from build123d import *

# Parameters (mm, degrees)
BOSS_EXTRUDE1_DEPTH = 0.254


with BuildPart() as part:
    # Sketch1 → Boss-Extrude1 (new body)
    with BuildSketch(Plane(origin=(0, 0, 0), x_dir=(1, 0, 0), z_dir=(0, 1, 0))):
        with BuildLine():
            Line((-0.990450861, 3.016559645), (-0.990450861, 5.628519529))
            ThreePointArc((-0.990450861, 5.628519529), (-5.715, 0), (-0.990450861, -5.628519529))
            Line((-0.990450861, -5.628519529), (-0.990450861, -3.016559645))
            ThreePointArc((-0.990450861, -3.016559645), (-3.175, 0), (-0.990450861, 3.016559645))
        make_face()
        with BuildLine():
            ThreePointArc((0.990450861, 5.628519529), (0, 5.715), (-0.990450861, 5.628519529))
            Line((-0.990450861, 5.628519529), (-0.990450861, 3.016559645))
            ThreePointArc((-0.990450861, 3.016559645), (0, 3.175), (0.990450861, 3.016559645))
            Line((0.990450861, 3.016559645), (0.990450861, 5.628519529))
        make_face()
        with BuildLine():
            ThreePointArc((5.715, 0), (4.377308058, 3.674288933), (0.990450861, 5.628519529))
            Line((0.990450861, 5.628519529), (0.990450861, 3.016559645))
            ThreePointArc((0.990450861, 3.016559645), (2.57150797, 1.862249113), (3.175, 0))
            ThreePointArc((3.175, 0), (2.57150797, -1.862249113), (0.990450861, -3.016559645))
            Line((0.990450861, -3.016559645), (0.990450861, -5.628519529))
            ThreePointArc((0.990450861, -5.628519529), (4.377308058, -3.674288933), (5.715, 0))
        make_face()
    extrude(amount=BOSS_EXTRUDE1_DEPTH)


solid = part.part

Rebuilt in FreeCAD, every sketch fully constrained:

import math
import FreeCAD as App
import Part
import Sketcher
Q = App.Units.Quantity

doc = App.newDocument("Part")
body = doc.addObject("PartDesign::Body", "Body")

sketch1 = body.newObject("Sketcher::SketchObject", "Sketch")
sketch1.AttachmentSupport = (doc.getObject("XZ_Plane"), [""])
sketch1.MapMode = "FlatFace"
sketch1.addGeometry([
    Part.ArcOfCircle(Part.Circle(App.Vector(0, 0, 0), App.Vector(0, 0, 1), 5.7), math.radians(100), math.radians(260)),
    Part.LineSegment(App.Vector(-1, 5.6, 0), App.Vector(-1, 3, 0)),
    Part.ArcOfCircle(Part.Circle(App.Vector(0, 0, 0), App.Vector(0, 0, 1), 3.2), math.radians(108), math.radians(252)),
    Part.ArcOfCircle(Part.Circle(App.Vector(0, 0, 0), App.Vector(0, 0, 1), 3.2), math.radians(-108), math.radians(-72)),
    Part.ArcOfCircle(Part.Circle(App.Vector(0, 0, 0), App.Vector(0, 0, 1), 3.2), math.radians(-72), math.radians(0)),
    Part.ArcOfCircle(Part.Circle(App.Vector(0, 0, 0), App.Vector(0, 0, 1), 3.2), math.radians(0), math.radians(72)),
    Part.LineSegment(App.Vector(1, 3, 0), App.Vector(1, 5.6, 0)),
    Part.ArcOfCircle(Part.Circle(App.Vector(0, 0, 0), App.Vector(0, 0, 1), 5.7), math.radians(0), math.radians(80)),
    Part.ArcOfCircle(Part.Circle(App.Vector(0, 0, 0), App.Vector(0, 0, 1), 5.7), math.radians(-80), math.radians(0)),
    Part.ArcOfCircle(Part.Circle(App.Vector(0, 0, 0), App.Vector(0, 0, 1), 5.7), math.radians(-99.98), math.radians(-80.02)),
], False)
sketch1.addConstraint([
    Sketcher.Constraint("Coincident", 0, 1, 1, 1),
    Sketcher.Constraint("Coincident", 1, 2, 2, 1),
    Sketcher.Constraint("Tangent", 2, 2, 3, 1),
    Sketcher.Constraint("Tangent", 3, 2, 4, 1),
    Sketcher.Constraint("Tangent", 4, 2, 5, 1),
    Sketcher.Constraint("Coincident", 5, 2, 6, 1),
    Sketcher.Constraint("Coincident", 6, 2, 7, 2),
    Sketcher.Constraint("Tangent", 7, 1, 8, 2),
    Sketcher.Constraint("Tangent", 8, 1, 9, 2),
    Sketcher.Constraint("Tangent", 9, 1, 0, 2),
    Sketcher.Constraint("Vertical", 1),
    Sketcher.Constraint("Vertical", 6),
    Sketcher.Constraint("Coincident", 0, 3, -1, 1),
    Sketcher.Constraint("Coincident", 2, 3, -1, 1),
    Sketcher.Constraint("Coincident", 4, 3, -1, 1),
    Sketcher.Constraint("Coincident", 7, 3, -1, 1),
    Sketcher.Constraint("Equal", 4, 5),
    Sketcher.Constraint("Equal", 0, 7),
    Sketcher.Constraint("PointOnObject", 4, 2, -1),
    Sketcher.Constraint("PointOnObject", 7, 1, -1),
    Sketcher.Constraint("Horizontal", 2, 2, 3, 2),
    Sketcher.Constraint("Horizontal", 1, 2, 5, 2),
    Sketcher.Constraint("Horizontal", 8, 1, 9, 1),
    Sketcher.Constraint("Vertical", 1, 2, 2, 2),
    Sketcher.Constraint("Vertical", 6, 2, 8, 1),
    Sketcher.Constraint("Radius", 0, Q("0.225 in")),
    Sketcher.Constraint("Radius", 2, Q("0.125 in")),
    Sketcher.Constraint("DistanceY", 1, 2, 1, 1, Q("2.61196 mm")),
])
pad1 = body.newObject("PartDesign::Pad", "Pad")
pad1.Profile = sketch1
pad1.Length = Q("0.01 in")
pad1.Reversed = True

doc.recompute()
